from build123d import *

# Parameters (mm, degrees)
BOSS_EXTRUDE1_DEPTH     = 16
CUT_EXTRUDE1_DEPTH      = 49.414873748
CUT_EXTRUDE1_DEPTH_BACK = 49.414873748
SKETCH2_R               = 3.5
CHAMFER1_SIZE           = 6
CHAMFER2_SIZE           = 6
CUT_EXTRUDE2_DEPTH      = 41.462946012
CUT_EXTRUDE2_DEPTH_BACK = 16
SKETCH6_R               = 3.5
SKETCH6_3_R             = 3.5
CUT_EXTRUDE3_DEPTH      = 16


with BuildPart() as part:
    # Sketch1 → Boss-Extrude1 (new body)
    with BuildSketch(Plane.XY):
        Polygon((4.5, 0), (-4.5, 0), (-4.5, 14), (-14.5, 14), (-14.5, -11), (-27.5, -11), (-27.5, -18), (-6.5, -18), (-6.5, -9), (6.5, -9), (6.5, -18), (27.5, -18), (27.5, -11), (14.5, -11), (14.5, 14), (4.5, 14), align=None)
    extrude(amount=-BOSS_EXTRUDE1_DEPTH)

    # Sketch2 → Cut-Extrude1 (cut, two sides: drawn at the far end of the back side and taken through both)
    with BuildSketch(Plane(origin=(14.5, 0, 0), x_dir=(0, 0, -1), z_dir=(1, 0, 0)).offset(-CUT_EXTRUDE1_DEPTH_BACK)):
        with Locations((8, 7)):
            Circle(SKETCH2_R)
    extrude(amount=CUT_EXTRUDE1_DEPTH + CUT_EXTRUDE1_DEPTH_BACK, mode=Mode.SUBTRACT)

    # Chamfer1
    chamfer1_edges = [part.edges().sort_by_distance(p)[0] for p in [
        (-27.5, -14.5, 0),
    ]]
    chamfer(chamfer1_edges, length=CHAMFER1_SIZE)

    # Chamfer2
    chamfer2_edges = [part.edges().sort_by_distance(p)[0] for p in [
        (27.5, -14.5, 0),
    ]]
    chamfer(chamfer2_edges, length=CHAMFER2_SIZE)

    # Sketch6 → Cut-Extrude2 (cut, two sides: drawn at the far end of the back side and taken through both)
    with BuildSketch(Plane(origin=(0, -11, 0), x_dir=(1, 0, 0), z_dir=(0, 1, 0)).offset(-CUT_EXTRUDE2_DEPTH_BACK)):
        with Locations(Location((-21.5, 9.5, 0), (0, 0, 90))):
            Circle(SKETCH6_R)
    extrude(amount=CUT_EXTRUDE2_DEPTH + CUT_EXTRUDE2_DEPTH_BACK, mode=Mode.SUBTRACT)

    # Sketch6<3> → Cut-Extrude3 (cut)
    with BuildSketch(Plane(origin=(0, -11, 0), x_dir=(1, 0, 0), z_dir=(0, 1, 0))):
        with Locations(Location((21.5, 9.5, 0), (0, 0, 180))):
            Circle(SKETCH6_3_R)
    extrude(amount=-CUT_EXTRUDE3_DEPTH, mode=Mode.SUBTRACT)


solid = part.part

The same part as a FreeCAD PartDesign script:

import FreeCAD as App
import Part
import Sketcher
from FreeCAD import Vector


def edges_at(feature, points):
    """Names of the edges that pass closest to the given points."""
    edges = feature.Shape.Edges
    near = lambda p: min(range(len(edges)), key=lambda i: edges[i].distToShape(Part.Vertex(*p))[0])
    return sorted({f"Edge{near(p) + 1}" for p in points})


def add_polygon(sketch, points):
    """Adds a closed chain of lines whose ends are joined by coincident constraints."""
    first, n = sketch.GeometryCount, len(points)
    for a, b in zip(points, points[1:] + points[:1]):
        sketch.addGeometry(Part.LineSegment(App.Vector(*a, 0), App.Vector(*b, 0)), False)
    for i in range(n):
        sketch.addConstraint(Sketcher.Constraint("Coincident", first + i, 2, first + (i + 1) % n, 1))

doc = App.newDocument("Part")
body = doc.addObject("PartDesign::Body", "Body")

sketch1 = body.newObject("Sketcher::SketchObject", "Sketch")
sketch1.AttachmentSupport = (doc.getObject("XY_Plane"), [""])
sketch1.MapMode = "FlatFace"
add_polygon(sketch1, [(4, 0), (-4, 0), (-4, 14), (-14, 14), (-14, -11), (-28, -11), (-28, -18), (-6, -18), (-6, -9), (6, -9), (6, -18), (28, -18), (28, -11), (14, -11), (14, 14), (4, 14)])
sketch1.addConstraint([
    Sketcher.Constraint("Horizontal", 0),
    Sketcher.Constraint("Vertical", 1),
    Sketcher.Constraint("Horizontal", 2),
    Sketcher.Constraint("Vertical", 3),
    Sketcher.Constraint("Horizontal", 4),
    Sketcher.Constraint("Vertical", 5),
    Sketcher.Constraint("Horizontal", 6),
    Sketcher.Constraint("Vertical", 7),
    Sketcher.Constraint("Horizontal", 8),
    Sketcher.Constraint("Vertical", 9),
    Sketcher.Constraint("Horizontal", 10),
    Sketcher.Constraint("Vertical", 11),
    Sketcher.Constraint("Horizontal", 12),
    Sketcher.Constraint("Vertical", 13),
    Sketcher.Constraint("Horizontal", 14),
    Sketcher.Constraint("Vertical", 15),
    Sketcher.Constraint("Symmetric", 0, 2, 15, 2, -1, 1),
    Sketcher.Constraint("Symmetric", 6, 2, 9, 2, -2),
    Sketcher.Constraint("Symmetric", 4, 2, 11, 2, -2),
    Sketcher.Constraint("Symmetric", 2, 2, 13, 2, -2),
    Sketcher.Constraint("Equal", 4, 8),
    Sketcher.Constraint("Equal", 0, 7),
    Sketcher.Constraint("DistanceX", 0, 2, 0, 1, 9.0),
    Sketcher.Constraint("DistanceX", 2, 2, 2, 1, 10.0),
    Sketcher.Constraint("DistanceX", 4, 2, 4, 1, 13.0),
    Sketcher.Constraint("DistanceY", 1, 1, 1, 2, 14.0),
    Sketcher.Constraint("DistanceY", 3, 2, 3, 1, 25.0),
    Sketcher.Constraint("DistanceY", 5, 2, 5, 1, 7.0),
])
pad1 = body.newObject("PartDesign::Pad", "Pad")
pad1.Profile = sketch1
pad1.Length = 16
pad1.Reversed = True

sketch2 = body.newObject("Sketcher::SketchObject", "Sketch001")
sketch2.AttachmentSupport = (doc.getObject("YZ_Plane"), [""])
sketch2.MapMode = "FlatFace"
sketch2.AttachmentOffset = App.Placement(Vector(0, 0, 14.5), App.Rotation())
sketch2.addGeometry(Part.Circle(Vector(7, -8, 0), Vector(0, 0, 1), 3.5), False)
sketch2.addConstraint([
    Sketcher.Constraint("Diameter", 0, 7.0),
    Sketcher.Constraint("DistanceX", -1, 1, 0, 3, 7.0),
    Sketcher.Constraint("DistanceY", 0, 3, -1, 1, 8.0),
])
pocket1 = body.newObject("PartDesign::Pocket", "Pocket")
pocket1.Profile = sketch2
pocket1.Type = "ThroughAll"
pocket1.Midplane = True
doc.recompute()

chamfer = body.newObject("PartDesign::Chamfer", "Chamfer")
chamfer.Base = (pocket1, edges_at(pocket1, [(-27.5, -14.5, 0)]))
chamfer.Size = 6
doc.recompute()

chamfer2 = body.newObject("PartDesign::Chamfer", "Chamfer001")
chamfer2.Base = (chamfer, edges_at(chamfer, [(27.5, -14.5, 0)]))
chamfer2.Size = 6

sketch3 = body.newObject("Sketcher::SketchObject", "Sketch002")
sketch3.AttachmentSupport = (doc.getObject("XZ_Plane"), [""])
sketch3.MapMode = "FlatFace"
sketch3.AttachmentOffset = App.Placement(Vector(0, 0, 11), App.Rotation())
sketch3.addGeometry(Part.Circle(Vector(-21.5, -9.5, 0), Vector(0, 0, 1), 3.5), False)
sketch3.addConstraint([
    Sketcher.Constraint("Diameter", 0, 7.0),
    Sketcher.Constraint("DistanceX", 0, 3, -1, 1, 21.5),
    Sketcher.Constraint("DistanceY", 0, 3, -1, 1, 9.5),
])
pocket2 = body.newObject("PartDesign::Pocket", "Pocket001")
pocket2.Profile = sketch3
pocket2.Type = "ThroughAll"
pocket2.Midplane = True

sketch4 = body.newObject("Sketcher::SketchObject", "Sketch003")
sketch4.AttachmentSupport = (doc.getObject("XZ_Plane"), [""])
sketch4.MapMode = "FlatFace"
sketch4.AttachmentOffset = App.Placement(Vector(0, 0, 11), App.Rotation())
sketch4.addGeometry(Part.Circle(Vector(21.5, -9.5, 0), Vector(0, 0, 1), 3.5), False)
sketch4.addConstraint([
    Sketcher.Constraint("Diameter", 0, 7.0),
    Sketcher.Constraint("DistanceX", -1, 1, 0, 3, 21.5),
    Sketcher.Constraint("DistanceY", 0, 3, -1, 1, 9.5),
])
pocket3 = body.newObject("PartDesign::Pocket", "Pocket002")
pocket3.Profile = sketch4
pocket3.Length = 16
pocket3.Reversed = True

doc.recompute()
